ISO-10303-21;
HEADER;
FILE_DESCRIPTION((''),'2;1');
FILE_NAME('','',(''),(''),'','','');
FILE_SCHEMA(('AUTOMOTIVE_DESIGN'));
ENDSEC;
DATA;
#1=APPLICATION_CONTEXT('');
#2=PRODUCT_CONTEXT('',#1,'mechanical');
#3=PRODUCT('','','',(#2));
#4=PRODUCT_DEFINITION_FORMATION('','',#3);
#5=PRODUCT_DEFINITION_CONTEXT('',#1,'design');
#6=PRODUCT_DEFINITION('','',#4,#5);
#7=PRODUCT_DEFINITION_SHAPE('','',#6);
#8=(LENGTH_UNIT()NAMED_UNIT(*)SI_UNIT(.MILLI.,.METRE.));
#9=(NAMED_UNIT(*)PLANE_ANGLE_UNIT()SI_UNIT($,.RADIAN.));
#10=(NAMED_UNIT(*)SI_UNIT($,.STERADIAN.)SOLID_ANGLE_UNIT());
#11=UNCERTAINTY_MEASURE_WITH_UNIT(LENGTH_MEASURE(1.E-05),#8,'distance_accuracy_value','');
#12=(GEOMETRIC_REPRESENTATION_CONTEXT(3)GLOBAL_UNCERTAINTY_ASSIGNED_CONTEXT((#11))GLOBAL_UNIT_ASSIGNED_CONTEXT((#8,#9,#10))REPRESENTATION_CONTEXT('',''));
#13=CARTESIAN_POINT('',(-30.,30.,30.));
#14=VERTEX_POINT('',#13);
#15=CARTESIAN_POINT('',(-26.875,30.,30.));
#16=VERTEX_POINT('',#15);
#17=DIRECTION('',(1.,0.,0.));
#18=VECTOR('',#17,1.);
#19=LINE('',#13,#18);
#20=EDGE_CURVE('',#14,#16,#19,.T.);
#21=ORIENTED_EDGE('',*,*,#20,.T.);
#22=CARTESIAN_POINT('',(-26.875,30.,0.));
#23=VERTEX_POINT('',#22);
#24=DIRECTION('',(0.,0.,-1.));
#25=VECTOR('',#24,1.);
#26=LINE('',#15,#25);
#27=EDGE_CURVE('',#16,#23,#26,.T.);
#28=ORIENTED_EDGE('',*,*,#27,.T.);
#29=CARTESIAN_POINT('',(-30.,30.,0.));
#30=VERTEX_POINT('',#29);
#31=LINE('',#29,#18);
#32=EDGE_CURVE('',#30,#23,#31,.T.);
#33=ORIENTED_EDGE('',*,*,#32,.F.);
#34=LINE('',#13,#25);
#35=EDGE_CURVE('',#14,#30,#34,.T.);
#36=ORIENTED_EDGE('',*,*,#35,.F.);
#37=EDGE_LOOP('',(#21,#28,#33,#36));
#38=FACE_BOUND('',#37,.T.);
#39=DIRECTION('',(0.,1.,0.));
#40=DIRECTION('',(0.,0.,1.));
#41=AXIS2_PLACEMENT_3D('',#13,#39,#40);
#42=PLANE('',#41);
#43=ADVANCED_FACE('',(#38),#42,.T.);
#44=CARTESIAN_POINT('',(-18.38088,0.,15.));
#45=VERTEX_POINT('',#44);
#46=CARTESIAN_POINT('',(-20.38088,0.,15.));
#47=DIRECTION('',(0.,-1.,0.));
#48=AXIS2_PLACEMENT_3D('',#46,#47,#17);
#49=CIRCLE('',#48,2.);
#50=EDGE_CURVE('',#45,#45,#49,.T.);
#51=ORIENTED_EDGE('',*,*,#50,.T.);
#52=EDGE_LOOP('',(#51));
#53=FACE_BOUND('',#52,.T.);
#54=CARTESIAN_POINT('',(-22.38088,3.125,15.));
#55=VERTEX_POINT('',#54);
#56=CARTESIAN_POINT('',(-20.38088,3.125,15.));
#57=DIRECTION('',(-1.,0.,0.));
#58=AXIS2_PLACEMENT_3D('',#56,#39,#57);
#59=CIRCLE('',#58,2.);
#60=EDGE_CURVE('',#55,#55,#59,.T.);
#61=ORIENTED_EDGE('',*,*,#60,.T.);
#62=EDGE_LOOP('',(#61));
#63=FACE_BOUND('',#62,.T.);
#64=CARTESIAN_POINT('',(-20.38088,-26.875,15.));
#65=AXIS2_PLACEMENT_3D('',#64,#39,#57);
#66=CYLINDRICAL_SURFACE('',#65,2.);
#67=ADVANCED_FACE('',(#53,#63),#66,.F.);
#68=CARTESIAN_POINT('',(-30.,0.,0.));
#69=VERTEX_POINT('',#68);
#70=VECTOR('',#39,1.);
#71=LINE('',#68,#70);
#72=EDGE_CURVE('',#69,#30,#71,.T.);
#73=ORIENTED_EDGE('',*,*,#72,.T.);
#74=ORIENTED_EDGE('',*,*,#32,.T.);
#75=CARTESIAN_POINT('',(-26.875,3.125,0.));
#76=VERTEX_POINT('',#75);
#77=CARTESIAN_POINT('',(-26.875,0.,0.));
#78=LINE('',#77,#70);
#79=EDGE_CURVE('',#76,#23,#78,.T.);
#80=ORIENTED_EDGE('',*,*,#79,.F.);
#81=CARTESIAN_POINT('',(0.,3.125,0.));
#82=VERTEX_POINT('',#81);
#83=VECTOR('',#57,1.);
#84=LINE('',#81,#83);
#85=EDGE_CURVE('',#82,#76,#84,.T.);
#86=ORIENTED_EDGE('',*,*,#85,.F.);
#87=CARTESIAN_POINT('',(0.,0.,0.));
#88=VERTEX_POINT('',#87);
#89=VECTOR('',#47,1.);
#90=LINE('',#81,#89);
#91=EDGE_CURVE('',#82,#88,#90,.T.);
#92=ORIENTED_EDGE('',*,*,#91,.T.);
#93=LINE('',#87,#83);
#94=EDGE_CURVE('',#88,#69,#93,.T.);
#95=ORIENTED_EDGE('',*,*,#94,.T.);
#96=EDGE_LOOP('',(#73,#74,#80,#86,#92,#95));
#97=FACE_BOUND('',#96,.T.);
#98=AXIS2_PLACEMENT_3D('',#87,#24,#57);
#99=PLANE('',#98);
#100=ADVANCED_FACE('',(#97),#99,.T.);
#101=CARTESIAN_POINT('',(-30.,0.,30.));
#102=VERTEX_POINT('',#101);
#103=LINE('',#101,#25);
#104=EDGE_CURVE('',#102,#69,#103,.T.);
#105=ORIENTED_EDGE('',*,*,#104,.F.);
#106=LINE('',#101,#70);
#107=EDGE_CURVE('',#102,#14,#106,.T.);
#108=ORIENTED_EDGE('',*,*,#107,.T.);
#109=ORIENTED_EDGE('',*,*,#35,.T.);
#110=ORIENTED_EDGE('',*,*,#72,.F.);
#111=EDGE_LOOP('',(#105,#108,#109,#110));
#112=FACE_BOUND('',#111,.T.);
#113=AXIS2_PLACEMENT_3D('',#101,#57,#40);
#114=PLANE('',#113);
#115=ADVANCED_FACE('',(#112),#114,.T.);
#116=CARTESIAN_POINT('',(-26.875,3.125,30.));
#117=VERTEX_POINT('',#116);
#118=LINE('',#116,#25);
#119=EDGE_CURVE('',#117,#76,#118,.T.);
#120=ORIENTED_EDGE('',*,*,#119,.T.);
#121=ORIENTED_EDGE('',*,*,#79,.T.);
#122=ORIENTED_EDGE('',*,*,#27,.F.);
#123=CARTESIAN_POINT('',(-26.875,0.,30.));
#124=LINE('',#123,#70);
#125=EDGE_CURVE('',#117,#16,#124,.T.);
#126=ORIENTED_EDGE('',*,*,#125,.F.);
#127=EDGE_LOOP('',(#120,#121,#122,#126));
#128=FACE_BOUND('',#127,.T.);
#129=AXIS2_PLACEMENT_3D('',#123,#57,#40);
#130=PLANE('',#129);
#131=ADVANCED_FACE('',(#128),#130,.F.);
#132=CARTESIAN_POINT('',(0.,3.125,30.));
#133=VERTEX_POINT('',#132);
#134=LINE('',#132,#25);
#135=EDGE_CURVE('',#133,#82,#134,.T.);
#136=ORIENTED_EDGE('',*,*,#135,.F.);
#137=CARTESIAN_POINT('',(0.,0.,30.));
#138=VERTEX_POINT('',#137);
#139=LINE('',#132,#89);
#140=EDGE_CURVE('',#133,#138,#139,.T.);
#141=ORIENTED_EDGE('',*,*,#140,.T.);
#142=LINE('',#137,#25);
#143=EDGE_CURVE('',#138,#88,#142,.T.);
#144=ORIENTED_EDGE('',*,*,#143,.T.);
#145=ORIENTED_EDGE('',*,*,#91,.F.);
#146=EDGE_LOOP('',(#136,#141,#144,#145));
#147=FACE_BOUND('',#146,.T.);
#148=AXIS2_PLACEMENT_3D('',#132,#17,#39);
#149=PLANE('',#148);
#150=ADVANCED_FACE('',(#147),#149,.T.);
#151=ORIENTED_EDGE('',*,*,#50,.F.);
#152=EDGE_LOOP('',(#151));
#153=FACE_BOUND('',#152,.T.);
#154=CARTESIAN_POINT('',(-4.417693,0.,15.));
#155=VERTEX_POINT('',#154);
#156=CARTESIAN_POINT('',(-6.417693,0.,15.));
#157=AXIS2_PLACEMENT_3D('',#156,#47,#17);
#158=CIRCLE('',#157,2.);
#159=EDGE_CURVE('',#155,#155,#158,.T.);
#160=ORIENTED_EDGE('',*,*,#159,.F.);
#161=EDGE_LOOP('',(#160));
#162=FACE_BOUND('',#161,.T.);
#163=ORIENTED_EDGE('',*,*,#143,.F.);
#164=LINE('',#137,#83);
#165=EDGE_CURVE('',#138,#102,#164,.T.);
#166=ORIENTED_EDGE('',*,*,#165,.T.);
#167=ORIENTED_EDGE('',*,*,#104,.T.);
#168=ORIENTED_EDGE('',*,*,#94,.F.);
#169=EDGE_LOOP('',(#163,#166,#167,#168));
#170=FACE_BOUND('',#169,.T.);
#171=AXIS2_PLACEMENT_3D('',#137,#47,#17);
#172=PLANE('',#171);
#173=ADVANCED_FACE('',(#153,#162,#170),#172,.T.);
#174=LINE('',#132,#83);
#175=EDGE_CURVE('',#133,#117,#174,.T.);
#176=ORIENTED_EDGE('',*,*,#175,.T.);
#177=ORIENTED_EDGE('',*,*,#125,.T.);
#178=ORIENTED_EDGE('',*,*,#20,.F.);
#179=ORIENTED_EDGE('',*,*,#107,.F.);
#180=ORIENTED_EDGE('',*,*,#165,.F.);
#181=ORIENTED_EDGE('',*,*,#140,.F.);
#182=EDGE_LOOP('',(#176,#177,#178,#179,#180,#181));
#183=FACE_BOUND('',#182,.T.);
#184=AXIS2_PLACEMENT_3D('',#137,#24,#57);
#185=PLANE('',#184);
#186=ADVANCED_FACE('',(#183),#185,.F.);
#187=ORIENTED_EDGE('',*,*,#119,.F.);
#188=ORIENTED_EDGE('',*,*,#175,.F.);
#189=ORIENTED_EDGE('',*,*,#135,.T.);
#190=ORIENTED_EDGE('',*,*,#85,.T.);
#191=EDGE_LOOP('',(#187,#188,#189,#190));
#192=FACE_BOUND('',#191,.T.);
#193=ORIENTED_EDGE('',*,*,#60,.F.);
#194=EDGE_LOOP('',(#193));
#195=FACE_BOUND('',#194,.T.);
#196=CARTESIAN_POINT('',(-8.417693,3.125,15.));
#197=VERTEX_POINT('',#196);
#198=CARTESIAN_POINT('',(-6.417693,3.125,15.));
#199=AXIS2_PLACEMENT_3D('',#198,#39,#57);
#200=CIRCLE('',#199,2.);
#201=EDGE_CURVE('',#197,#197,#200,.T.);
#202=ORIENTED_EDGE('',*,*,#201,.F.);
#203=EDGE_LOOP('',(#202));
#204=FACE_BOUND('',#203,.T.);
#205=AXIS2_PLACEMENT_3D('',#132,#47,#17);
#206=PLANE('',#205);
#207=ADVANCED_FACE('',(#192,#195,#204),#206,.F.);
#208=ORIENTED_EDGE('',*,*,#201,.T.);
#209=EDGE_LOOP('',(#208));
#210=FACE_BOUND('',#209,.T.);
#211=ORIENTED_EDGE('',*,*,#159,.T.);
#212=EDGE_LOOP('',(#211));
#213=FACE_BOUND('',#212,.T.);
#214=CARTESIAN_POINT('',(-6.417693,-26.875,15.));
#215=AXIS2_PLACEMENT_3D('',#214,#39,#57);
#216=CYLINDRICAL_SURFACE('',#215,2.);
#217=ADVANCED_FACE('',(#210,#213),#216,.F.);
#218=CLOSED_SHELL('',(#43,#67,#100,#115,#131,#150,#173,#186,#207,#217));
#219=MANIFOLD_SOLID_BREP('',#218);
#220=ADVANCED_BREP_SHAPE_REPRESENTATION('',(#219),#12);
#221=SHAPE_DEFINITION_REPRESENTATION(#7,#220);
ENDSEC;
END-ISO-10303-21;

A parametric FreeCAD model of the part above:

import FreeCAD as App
import Part
import Sketcher

V = App.Vector
Q = App.Units.Quantity


def add_polygon(sketch, points):
    """Adds a closed chain of lines whose ends are joined by coincident constraints."""
    first, n = sketch.GeometryCount, len(points)
    for a, b in zip(points, points[1:] + points[:1]):
        sketch.addGeometry(Part.LineSegment(App.Vector(*a, 0), App.Vector(*b, 0)), False)
    for i in range(n):
        sketch.addConstraint(Sketcher.Constraint("Coincident", first + i, 2, first + (i + 1) % n, 1))

doc = App.newDocument("Part")
body = doc.addObject("PartDesign::Body", "Body")

sketch1 = body.newObject("Sketcher::SketchObject", "Sketch")
sketch1.AttachmentSupport = (doc.getObject("XY_Plane"), [""])
sketch1.MapMode = "FlatFace"
add_polygon(sketch1, [(-30, 0), (0, 0), (0, 3.125), (-26.875, 3.125), (-26.875, 30), (-30, 30)])
sketch1.addConstraint([
    Sketcher.Constraint("Horizontal", 0),
    Sketcher.Constraint("Vertical", 1),
    Sketcher.Constraint("Horizontal", 2),
    Sketcher.Constraint("Vertical", 3),
    Sketcher.Constraint("Horizontal", 4),
    Sketcher.Constraint("Vertical", 5),
    Sketcher.Constraint("Coincident", 0, 2, -1, 1),
    Sketcher.Constraint("Equal", 4, 1),
    Sketcher.Constraint("Equal", 2, 3),
    Sketcher.Constraint("DistanceX", 0, 1, 0, 2, Q("30 mm")),
    Sketcher.Constraint("DistanceX", 2, 2, 2, 1, Q("26.875 mm")),
])
pad1 = body.newObject("PartDesign::Pad", "Pad")
pad1.Profile = sketch1
pad1.Length = 30

sketch2 = body.newObject("Sketcher::SketchObject", "Sketch001")
sketch2.AttachmentSupport = (doc.getObject("XZ_Plane"), [""])
sketch2.MapMode = "FlatFace"
sketch2.AttachmentOffset = App.Placement(V(0, 0, -3.125), App.Rotation())
sketch2.addGeometry([
    Part.Circle(V(-6.417693, 15, 0), V(0, 0, 1), 2),
    Part.Circle(V(-20.38088, 15, 0), V(0, 0, 1), 2),
], False)
sketch2.addConstraint([
    Sketcher.Constraint("Equal", 0, 1),
    Sketcher.Constraint("Horizontal", 0, 3, 1, 3),
    Sketcher.Constraint("Diameter", 0, Q("4 mm")),
    Sketcher.Constraint("DistanceY", -1, 1, 0, 3, Q("15 mm")),
    Sketcher.Constraint("DistanceX", 1, 3, -1, 1, Q("20.38088 mm")),
    Sketcher.Constraint("DistanceX", 0, 3, -1, 1, Q("6.417693 mm")),
])
pocket1 = body.newObject("PartDesign::Pocket", "Pocket")
pocket1.Profile = sketch2
pocket1.Length = 30
pocket1.Reversed = True

doc.recompute()
